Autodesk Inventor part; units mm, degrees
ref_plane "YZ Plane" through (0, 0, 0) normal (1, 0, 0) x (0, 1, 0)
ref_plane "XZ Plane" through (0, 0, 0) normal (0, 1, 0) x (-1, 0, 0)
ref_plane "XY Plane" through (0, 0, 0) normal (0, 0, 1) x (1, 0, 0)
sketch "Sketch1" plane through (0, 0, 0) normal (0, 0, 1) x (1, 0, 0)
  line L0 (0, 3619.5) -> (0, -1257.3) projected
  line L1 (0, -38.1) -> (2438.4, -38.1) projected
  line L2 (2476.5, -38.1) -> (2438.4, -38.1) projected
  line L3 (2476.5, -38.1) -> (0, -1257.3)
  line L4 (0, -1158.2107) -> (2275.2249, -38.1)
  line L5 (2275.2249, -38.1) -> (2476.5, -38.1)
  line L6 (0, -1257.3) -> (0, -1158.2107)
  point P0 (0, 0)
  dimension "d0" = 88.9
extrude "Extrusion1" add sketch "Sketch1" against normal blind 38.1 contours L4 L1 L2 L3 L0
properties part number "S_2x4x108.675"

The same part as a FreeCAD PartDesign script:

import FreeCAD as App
import Part
import Sketcher
from FreeCAD import Vector
Q = App.Units.Quantity


def add_polygon(sketch, points):
    """Adds a closed chain of lines whose ends are joined by coincident constraints."""
    first, n = sketch.GeometryCount, len(points)
    for a, b in zip(points, points[1:] + points[:1]):
        sketch.addGeometry(Part.LineSegment(App.Vector(*a, 0), App.Vector(*b, 0)), False)
    for i in range(n):
        sketch.addConstraint(Sketcher.Constraint("Coincident", first + i, 2, first + (i + 1) % n, 1))

doc = App.newDocument("Part")
params = doc.addObject("Spreadsheet::Sheet", "Params")
for row, (alias, value) in enumerate([
    ("sketch1_length", "2536 mm"),
    ("pad1_length", "38.1 mm"),
], start=1):
    params.set(f"A{row}", alias)
    params.set(f"B{row}", "=" + value)
    params.setAlias(f"B{row}", alias)

body = doc.addObject("PartDesign::Body", "Body")

sketch1 = body.newObject("Sketcher::SketchObject", "Sketch")
sketch1.AttachmentSupport = (doc.getObject("XY_Plane"), [""])
sketch1.MapMode = "FlatFace"
add_polygon(sketch1, [(2275.2249, -38.1), (0, -1158.2107), (0, -1257.3), (2476.5, -38.1)])
sketch1.addConstraint([
    Sketcher.Constraint("Vertical", 1),
    Sketcher.Constraint("Horizontal", 3),
    Sketcher.Constraint("PointOnObject", 0, 2, -2),
    Sketcher.Constraint("Parallel", 0, 2),
    Sketcher.Constraint("Distance", 0, Q("2536 mm")),
    Sketcher.Constraint("DistanceY", 1, 2, -1, 1, Q("1257.3 mm")),
    Sketcher.Constraint("DistanceX", -1, 1, 2, 2, Q("2476.5 mm")),
    Sketcher.Constraint("DistanceY", 2, 2, -1, 1, Q("38.1 mm")),
])
sketch1.setExpression("Constraints[8]", "Params.sketch1_length")
pad1 = body.newObject("PartDesign::Pad", "Pad")
pad1.Profile = sketch1
pad1.setExpression("Length", "Params.pad1_length")
pad1.Reversed = True

doc.recompute()
